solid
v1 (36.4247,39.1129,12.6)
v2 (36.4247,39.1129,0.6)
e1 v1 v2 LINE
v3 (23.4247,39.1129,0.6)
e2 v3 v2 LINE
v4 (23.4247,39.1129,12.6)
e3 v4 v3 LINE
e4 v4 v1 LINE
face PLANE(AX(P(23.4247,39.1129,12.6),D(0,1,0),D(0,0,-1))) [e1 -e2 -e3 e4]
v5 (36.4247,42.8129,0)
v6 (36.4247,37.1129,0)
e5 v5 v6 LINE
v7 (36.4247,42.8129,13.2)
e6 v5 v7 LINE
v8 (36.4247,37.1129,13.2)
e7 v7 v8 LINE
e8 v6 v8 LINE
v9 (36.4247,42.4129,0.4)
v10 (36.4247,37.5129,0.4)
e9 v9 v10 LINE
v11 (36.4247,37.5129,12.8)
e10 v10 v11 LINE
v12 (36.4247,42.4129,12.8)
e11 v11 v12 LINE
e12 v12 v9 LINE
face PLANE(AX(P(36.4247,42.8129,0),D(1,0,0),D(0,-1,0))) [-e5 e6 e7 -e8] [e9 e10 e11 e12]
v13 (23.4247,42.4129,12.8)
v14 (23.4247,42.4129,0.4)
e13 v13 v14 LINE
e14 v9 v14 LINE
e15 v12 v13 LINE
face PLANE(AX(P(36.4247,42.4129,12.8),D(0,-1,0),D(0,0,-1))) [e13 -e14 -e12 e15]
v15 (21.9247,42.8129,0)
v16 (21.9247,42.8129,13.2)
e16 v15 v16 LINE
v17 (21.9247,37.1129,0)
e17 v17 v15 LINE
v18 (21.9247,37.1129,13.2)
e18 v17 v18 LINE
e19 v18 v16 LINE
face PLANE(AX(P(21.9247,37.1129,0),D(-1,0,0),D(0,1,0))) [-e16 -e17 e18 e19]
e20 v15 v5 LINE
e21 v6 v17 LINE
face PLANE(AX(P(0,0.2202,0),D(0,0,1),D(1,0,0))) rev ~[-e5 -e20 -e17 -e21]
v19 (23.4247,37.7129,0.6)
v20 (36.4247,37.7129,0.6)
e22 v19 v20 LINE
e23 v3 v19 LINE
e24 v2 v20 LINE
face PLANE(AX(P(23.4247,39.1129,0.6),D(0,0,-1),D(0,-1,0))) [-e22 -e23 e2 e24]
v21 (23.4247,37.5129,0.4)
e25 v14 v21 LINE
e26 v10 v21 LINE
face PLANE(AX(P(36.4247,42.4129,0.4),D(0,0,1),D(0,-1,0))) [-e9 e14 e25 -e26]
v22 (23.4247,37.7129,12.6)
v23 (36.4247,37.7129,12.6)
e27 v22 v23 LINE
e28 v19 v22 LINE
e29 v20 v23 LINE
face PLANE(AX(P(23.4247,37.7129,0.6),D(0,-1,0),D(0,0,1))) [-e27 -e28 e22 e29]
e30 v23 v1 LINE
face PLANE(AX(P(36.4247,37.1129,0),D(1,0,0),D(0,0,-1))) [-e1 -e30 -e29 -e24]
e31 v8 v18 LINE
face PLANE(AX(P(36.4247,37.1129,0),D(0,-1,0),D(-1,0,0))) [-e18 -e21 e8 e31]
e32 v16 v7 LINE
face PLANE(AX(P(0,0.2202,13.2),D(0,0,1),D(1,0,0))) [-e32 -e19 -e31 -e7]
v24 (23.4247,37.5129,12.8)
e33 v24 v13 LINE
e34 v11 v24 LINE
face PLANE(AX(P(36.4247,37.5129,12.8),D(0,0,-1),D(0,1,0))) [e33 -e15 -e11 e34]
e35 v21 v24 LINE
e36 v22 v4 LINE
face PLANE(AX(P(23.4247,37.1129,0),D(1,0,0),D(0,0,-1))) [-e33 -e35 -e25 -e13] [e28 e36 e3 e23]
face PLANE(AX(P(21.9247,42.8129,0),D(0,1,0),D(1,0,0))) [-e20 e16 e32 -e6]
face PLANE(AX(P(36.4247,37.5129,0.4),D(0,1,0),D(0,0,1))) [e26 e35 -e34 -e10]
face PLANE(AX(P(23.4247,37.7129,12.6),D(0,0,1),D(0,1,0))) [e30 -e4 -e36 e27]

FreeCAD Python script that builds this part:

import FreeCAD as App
import Part
import Sketcher
from FreeCAD import Vector
Q = App.Units.Quantity

doc = App.newDocument("Part")
body = doc.addObject("PartDesign::Body", "Body")

sketch1 = body.newObject("Sketcher::SketchObject", "Sketch")
sketch1.AttachmentSupport = (doc.getObject("XY_Plane"), [""])
sketch1.MapMode = "FlatFace"
sketch1.addGeometry(Part.LineSegment(Vector(36, 43, 0), Vector(22, 43, 0)), False)
sketch1.addGeometry(Part.LineSegment(Vector(22, 43, 0), Vector(22, 37, 0)), False)
sketch1.addGeometry(Part.LineSegment(Vector(22, 37, 0), Vector(36, 37, 0)), False)
sketch1.addGeometry(Part.LineSegment(Vector(36, 37, 0), Vector(36, 43, 0)), False)
sketch1.addConstraint(Sketcher.Constraint("Coincident", 0, 2, 1, 1))
sketch1.addConstraint(Sketcher.Constraint("Coincident", 1, 2, 2, 1))
sketch1.addConstraint(Sketcher.Constraint("Coincident", 2, 2, 3, 1))
sketch1.addConstraint(Sketcher.Constraint("Coincident", 3, 2, 0, 1))
sketch1.addConstraint(Sketcher.Constraint("Horizontal", 0))
sketch1.addConstraint(Sketcher.Constraint("Vertical", 1))
sketch1.addConstraint(Sketcher.Constraint("Horizontal", 2))
sketch1.addConstraint(Sketcher.Constraint("Vertical", 3))
sketch1.addConstraint(Sketcher.Constraint("DistanceX", 0, 2, 0, 1, Q("14.5 mm")))
sketch1.addConstraint(Sketcher.Constraint("DistanceY", 1, 2, 1, 1, Q("5.7 mm")))
sketch1.addConstraint(Sketcher.Constraint("DistanceY", -1, 1, 0, 2, Q("42.813 mm")))
sketch1.addConstraint(Sketcher.Constraint("DistanceX", -1, 1, 0, 2, Q("21.9247 mm")))
pad1 = body.newObject("PartDesign::Pad", "Pad")
pad1.Profile = sketch1
pad1.Length = 13.2

sketch2 = body.newObject("Sketcher::SketchObject", "Sketch001")
sketch2.AttachmentSupport = (doc.getObject("YZ_Plane"), [""])
sketch2.MapMode = "FlatFace"
sketch2.AttachmentOffset = App.Placement(Vector(0, 0, 36.4247), App.Rotation())
sketch2.addGeometry(Part.LineSegment(Vector(42.4, 0.4, 0), Vector(42.4, 12.8, 0)), False)
sketch2.addGeometry(Part.LineSegment(Vector(42.4, 12.8, 0), Vector(37.5, 12.8, 0)), False)
sketch2.addGeometry(Part.LineSegment(Vector(37.5, 12.8, 0), Vector(37.5, 0.4, 0)), False)
sketch2.addGeometry(Part.LineSegment(Vector(37.5, 0.4, 0), Vector(42.4, 0.4, 0)), False)
sketch2.addConstraint(Sketcher.Constraint("Coincident", 0, 2, 1, 1))
sketch2.addConstraint(Sketcher.Constraint("Coincident", 1, 2, 2, 1))
sketch2.addConstraint(Sketcher.Constraint("Coincident", 2, 2, 3, 1))
sketch2.addConstraint(Sketcher.Constraint("Coincident", 3, 2, 0, 1))
sketch2.addConstraint(Sketcher.Constraint("Vertical", 0))
sketch2.addConstraint(Sketcher.Constraint("Horizontal", 1))
sketch2.addConstraint(Sketcher.Constraint("Vertical", 2))
sketch2.addConstraint(Sketcher.Constraint("Horizontal", 3))
sketch2.addConstraint(Sketcher.Constraint("DistanceY", -1, 1, 2, 2, Q("0.4 mm")))
sketch2.addConstraint(Sketcher.Constraint("DistanceX", 1, 2, 1, 1, Q("4.9 mm")))
sketch2.addConstraint(Sketcher.Constraint("DistanceY", 0, 1, 0, 2, Q("12.4 mm")))
sketch2.addConstraint(Sketcher.Constraint("DistanceX", -1, 1, 0, 2, Q("42.413 mm")))
pocket1 = body.newObject("PartDesign::Pocket", "Pocket")
pocket1.Profile = sketch2
pocket1.Length = 13

sketch3 = body.newObject("Sketcher::SketchObject", "Sketch002")
sketch3.AttachmentSupport = (doc.getObject("YZ_Plane"), [""])
sketch3.MapMode = "FlatFace"
sketch3.AttachmentOffset = App.Placement(Vector(0, 0, 23.4247), App.Rotation())
sketch3.addGeometry(Part.LineSegment(Vector(39.1, 0.6, 0), Vector(39.1, 12.6, 0)), False)
sketch3.addGeometry(Part.LineSegment(Vector(39.1, 12.6, 0), Vector(37.7, 12.6, 0)), False)
sketch3.addGeometry(Part.LineSegment(Vector(37.7, 12.6, 0), Vector(37.7, 0.6, 0)), False)
sketch3.addGeometry(Part.LineSegment(Vector(37.7, 0.6, 0), Vector(39.1, 0.6, 0)), False)
sketch3.addConstraint(Sketcher.Constraint("Coincident", 0, 2, 1, 1))
sketch3.addConstraint(Sketcher.Constraint("Coincident", 1, 2, 2, 1))
sketch3.addConstraint(Sketcher.Constraint("Coincident", 2, 2, 3, 1))
sketch3.addConstraint(Sketcher.Constraint("Coincident", 3, 2, 0, 1))
sketch3.addConstraint(Sketcher.Constraint("Vertical", 0))
sketch3.addConstraint(Sketcher.Constraint("Horizontal", 1))
sketch3.addConstraint(Sketcher.Constraint("Vertical", 2))
sketch3.addConstraint(Sketcher.Constraint("Horizontal", 3))
sketch3.addConstraint(Sketcher.Constraint("DistanceX", 1, 2, 1, 1, Q("1.4 mm")))
sketch3.addConstraint(Sketcher.Constraint("DistanceY", 0, 1, 0, 2, Q("12 mm")))
sketch3.addConstraint(Sketcher.Constraint("DistanceY", -1, 1, 0, 2, Q("12.6 mm")))
sketch3.addConstraint(Sketcher.Constraint("DistanceX", -1, 1, 0, 2, Q("39.113 mm")))
pad2 = body.newObject("PartDesign::Pad", "Pad001")
pad2.Profile = sketch3
pad2.Length = 13

doc.recompute()
